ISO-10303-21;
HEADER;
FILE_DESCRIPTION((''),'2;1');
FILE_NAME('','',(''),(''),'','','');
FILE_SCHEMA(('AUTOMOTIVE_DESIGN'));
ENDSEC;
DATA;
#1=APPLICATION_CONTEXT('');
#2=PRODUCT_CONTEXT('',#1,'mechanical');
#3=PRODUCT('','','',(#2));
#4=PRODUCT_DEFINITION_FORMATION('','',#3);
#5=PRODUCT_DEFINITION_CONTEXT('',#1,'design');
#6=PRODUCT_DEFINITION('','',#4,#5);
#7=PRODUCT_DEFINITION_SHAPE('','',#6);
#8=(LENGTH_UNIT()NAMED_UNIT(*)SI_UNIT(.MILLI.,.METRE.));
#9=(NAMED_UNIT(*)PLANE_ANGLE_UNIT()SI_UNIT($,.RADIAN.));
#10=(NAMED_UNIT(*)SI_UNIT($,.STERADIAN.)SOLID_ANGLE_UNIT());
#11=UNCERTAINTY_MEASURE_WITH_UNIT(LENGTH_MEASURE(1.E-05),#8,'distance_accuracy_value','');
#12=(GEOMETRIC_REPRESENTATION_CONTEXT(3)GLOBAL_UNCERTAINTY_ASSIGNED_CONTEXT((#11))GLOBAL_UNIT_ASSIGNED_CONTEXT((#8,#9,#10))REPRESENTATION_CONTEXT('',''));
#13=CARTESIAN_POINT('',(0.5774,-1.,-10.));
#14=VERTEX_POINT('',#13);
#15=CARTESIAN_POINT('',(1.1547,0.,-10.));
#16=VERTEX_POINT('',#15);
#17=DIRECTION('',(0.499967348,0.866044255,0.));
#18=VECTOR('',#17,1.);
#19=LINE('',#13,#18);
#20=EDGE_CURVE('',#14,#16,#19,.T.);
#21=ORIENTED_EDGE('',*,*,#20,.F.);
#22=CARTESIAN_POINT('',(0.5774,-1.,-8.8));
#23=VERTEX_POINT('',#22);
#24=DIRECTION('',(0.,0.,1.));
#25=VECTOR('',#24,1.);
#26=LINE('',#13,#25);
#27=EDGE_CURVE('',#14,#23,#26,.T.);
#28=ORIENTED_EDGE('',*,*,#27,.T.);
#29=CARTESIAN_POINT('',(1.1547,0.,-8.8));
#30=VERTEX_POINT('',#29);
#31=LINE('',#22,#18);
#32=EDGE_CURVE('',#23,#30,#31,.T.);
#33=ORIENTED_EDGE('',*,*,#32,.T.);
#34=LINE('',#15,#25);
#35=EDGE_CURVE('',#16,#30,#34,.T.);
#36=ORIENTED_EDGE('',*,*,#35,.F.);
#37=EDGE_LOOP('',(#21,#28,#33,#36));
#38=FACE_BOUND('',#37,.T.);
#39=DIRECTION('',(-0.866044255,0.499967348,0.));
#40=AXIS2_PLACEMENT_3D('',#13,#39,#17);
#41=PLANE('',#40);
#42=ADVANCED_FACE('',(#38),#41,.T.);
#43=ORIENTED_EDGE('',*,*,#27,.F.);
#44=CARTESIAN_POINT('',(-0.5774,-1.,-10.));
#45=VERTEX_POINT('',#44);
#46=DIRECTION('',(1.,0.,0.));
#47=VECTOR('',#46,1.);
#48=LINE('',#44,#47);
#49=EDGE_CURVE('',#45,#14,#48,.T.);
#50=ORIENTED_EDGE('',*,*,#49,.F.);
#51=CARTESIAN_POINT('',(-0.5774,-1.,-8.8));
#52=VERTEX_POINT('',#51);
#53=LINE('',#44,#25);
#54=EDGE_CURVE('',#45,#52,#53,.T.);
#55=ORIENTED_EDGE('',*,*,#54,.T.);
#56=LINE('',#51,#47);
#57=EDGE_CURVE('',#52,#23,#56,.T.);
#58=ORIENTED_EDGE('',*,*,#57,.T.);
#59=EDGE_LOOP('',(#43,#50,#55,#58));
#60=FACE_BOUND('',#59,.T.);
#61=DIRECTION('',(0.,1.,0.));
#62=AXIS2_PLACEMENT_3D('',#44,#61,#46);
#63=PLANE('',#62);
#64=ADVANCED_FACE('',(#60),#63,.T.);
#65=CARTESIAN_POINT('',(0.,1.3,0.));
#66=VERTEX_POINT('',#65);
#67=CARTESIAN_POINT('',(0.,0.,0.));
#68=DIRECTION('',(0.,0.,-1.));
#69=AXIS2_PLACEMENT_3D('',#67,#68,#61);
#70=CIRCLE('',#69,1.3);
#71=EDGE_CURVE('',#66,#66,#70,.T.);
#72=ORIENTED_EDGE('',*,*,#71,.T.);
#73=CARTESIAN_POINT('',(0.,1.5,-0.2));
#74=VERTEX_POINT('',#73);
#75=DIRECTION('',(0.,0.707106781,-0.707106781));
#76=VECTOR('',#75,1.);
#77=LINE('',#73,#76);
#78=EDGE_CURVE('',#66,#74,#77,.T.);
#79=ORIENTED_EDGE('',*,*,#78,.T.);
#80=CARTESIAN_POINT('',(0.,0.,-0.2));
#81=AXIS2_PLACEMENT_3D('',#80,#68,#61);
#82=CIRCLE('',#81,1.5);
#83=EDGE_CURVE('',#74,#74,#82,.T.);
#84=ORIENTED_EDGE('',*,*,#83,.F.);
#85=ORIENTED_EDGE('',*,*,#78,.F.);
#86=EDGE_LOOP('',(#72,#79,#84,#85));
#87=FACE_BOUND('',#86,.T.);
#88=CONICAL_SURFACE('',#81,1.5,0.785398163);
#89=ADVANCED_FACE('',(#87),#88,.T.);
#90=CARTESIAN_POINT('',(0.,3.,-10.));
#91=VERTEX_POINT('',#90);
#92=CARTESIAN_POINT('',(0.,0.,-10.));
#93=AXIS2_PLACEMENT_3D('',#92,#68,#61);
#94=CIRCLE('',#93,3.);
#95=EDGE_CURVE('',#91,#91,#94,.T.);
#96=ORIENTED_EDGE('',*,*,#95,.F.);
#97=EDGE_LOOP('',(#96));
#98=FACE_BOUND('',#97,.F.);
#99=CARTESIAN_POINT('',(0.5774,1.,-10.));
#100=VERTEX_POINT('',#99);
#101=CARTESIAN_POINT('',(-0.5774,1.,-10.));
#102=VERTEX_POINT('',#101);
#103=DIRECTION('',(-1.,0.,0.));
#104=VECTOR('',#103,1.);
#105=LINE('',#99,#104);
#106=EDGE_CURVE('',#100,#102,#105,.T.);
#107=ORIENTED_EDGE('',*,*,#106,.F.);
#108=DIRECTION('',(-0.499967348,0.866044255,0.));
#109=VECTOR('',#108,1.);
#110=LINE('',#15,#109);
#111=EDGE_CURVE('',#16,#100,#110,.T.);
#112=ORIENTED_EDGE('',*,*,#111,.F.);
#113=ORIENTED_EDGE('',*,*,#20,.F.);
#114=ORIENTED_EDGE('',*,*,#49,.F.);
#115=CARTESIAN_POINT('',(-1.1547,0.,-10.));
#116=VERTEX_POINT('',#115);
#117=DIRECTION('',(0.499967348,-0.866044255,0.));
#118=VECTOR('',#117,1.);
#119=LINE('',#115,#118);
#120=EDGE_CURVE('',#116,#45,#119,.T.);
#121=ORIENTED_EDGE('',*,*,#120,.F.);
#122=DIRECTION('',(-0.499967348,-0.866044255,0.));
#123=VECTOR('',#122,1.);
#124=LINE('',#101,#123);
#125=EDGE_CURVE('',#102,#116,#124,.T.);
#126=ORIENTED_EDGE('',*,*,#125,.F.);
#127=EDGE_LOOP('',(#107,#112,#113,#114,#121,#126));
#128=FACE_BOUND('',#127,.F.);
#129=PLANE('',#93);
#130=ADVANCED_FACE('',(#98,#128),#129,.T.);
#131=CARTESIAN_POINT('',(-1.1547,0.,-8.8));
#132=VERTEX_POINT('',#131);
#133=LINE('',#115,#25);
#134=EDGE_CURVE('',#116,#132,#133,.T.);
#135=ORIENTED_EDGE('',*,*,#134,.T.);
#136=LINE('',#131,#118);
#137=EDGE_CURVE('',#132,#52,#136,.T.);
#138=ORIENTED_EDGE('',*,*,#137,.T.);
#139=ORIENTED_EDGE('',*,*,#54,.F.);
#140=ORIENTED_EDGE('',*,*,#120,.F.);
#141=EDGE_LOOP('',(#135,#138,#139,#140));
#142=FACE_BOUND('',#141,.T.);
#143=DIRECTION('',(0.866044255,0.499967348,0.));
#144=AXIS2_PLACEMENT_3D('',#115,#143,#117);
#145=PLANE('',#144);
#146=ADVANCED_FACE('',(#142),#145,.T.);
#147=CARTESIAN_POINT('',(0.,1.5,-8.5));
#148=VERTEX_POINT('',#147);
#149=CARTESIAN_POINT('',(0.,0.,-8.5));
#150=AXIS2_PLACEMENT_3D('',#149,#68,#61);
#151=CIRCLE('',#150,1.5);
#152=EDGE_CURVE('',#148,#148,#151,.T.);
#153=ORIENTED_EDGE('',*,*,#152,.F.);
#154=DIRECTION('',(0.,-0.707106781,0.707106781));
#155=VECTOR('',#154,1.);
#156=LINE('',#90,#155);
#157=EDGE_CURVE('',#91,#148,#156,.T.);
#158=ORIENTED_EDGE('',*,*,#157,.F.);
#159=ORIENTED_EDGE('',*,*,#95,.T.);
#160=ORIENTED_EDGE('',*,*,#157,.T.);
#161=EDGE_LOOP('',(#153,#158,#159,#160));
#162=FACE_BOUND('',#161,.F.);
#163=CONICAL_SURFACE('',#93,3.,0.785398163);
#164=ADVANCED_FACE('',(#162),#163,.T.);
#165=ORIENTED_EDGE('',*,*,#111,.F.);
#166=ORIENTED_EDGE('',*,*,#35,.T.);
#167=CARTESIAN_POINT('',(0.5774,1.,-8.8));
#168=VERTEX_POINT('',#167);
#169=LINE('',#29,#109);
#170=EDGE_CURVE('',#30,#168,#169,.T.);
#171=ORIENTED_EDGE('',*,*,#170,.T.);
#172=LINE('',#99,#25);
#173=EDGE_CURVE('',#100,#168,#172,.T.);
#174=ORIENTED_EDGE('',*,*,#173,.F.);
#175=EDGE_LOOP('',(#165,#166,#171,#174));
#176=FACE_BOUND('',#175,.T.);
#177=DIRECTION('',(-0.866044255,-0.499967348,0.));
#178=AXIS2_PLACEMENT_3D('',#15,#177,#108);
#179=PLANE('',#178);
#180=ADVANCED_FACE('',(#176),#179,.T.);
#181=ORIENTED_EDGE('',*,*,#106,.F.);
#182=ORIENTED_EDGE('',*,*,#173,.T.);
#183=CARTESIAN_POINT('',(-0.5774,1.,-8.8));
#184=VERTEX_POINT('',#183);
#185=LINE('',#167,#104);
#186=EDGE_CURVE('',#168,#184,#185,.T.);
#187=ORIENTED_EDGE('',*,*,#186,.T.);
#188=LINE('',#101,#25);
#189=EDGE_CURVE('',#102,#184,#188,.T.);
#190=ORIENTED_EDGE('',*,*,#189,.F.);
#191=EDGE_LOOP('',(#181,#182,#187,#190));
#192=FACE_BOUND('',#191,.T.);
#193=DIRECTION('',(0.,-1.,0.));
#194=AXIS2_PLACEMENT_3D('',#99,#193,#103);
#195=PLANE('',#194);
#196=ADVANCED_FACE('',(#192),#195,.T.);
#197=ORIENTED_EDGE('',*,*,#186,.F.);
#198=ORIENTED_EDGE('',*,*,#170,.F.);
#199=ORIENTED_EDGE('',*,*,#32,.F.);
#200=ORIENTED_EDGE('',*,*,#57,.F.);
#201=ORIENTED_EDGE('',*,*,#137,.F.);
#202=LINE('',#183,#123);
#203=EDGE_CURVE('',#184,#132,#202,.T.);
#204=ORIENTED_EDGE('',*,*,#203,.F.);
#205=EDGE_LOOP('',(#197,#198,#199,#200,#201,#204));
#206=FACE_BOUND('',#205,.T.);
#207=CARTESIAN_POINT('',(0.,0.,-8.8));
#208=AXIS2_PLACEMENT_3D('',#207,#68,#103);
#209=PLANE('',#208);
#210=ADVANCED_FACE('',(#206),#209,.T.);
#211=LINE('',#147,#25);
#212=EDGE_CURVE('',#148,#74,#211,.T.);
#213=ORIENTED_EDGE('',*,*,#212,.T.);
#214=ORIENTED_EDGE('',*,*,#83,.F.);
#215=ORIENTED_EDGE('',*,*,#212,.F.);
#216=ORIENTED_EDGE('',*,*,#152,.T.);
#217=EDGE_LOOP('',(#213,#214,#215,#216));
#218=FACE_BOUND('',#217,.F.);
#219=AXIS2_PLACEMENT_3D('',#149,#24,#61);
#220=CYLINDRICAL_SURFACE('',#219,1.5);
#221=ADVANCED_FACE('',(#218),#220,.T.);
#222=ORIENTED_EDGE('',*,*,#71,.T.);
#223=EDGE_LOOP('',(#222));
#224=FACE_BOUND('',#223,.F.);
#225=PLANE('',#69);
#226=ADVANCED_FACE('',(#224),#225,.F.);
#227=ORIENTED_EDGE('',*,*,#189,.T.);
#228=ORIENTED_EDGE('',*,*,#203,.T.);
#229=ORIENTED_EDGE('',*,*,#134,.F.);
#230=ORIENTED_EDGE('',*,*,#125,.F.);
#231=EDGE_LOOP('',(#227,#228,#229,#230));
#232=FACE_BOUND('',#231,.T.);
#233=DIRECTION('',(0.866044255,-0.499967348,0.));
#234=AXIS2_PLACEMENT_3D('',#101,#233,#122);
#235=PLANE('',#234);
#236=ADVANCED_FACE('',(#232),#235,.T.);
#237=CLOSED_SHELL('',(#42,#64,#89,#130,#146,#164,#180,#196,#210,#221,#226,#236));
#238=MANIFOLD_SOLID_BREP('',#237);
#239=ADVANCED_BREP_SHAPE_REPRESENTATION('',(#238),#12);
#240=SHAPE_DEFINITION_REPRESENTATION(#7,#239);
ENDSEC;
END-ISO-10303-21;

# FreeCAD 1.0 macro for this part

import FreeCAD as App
import Part
import Sketcher
from FreeCAD import Vector
Q = App.Units.Quantity


def edges_at(feature, points):
    """Names of the edges that pass closest to the given points."""
    edges = feature.Shape.Edges
    near = lambda p: min(range(len(edges)), key=lambda i: edges[i].distToShape(Part.Vertex(*p))[0])
    return sorted({f"Edge{near(p) + 1}" for p in points})

doc = App.newDocument("Part")
body = doc.addObject("PartDesign::Body", "Body")

# Sketch on YZ plane
sketch1 = body.newObject("Sketcher::SketchObject", "Sketch")
sketch1.AttachmentSupport = (doc.getObject("YZ_Plane"), [""])
sketch1.MapMode = "FlatFace"
sketch1.addGeometry([
    Part.LineSegment(Vector(1.5, 0, 0), Vector(0, 0, 0)),  # 0
    Part.LineSegment(Vector(0, 0, 0), Vector(0, -10, 0)),  # 1
    Part.LineSegment(Vector(0, -10, 0), Vector(3, -10, 0)),  # 2
    Part.LineSegment(Vector(3, -10, 0), Vector(1.5, -8.5, 0)),  # 3
    Part.LineSegment(Vector(1.5, -8.5, 0), Vector(1.5, 0, 0)),  # 4
], False)
sketch1.addConstraint([
    Sketcher.Constraint("Coincident", 0, 2, 1, 1),
    Sketcher.Constraint("Coincident", 1, 2, 2, 1),
    Sketcher.Constraint("Coincident", 2, 2, 3, 1),
    Sketcher.Constraint("Coincident", 3, 2, 4, 1),
    Sketcher.Constraint("Coincident", 4, 2, 0, 1),
    Sketcher.Constraint("Horizontal", 0),
    Sketcher.Constraint("Vertical", 1),
    Sketcher.Constraint("Horizontal", 2),
    Sketcher.Constraint("Vertical", 4),
    Sketcher.Constraint("Coincident", 0, 2, -1, 1),
    Sketcher.Constraint("DistanceX", 2, 1, 2, 2, Q("3 mm")),
    Sketcher.Constraint("DistanceY", 1, 2, 1, 1, Q("10 mm")),
    Sketcher.Constraint("Angle", 3, Q("135 deg")),
    Sketcher.Constraint("DistanceX", 0, 2, 0, 1, Q("1.5 mm")),
])
revolution = body.newObject("PartDesign::Revolution", "Revolution")
revolution.Profile = sketch1
revolution.ReferenceAxis = (sketch1, ["V_Axis"])
revolution.Angle = 360
doc.recompute()

chamfer = body.newObject("PartDesign::Chamfer", "Chamfer")
chamfer.Base = (revolution, edges_at(revolution, [(0, -1.5, 0)]))
chamfer.Size = 0.2

# Sketch on XY plane
sketch2 = body.newObject("Sketcher::SketchObject", "Sketch001")
sketch2.AttachmentSupport = (doc.getObject("XY_Plane"), [""])
sketch2.MapMode = "FlatFace"
sketch2.AttachmentOffset = App.Placement(Vector(0, 0, -10), App.Rotation())
sketch2.addGeometry([
    Part.LineSegment(Vector(-0.6, -1, 0), Vector(-1.2, 0, 0)),  # 0
    Part.LineSegment(Vector(-1.2, 0, 0), Vector(-0.6, 1, 0)),  # 1
    Part.LineSegment(Vector(-0.6, 1, 0), Vector(0.6, 1, 0)),  # 2
    Part.LineSegment(Vector(0.6, 1, 0), Vector(1.2, 0, 0)),  # 3
    Part.LineSegment(Vector(1.2, 0, 0), Vector(0.6, -1, 0)),  # 4
    Part.LineSegment(Vector(0.6, -1, 0), Vector(-0.6, -1, 0)),  # 5
], False)
sketch2.addConstraint([
    Sketcher.Constraint("Coincident", 0, 2, 1, 1),
    Sketcher.Constraint("Coincident", 1, 2, 2, 1),
    Sketcher.Constraint("Coincident", 2, 2, 3, 1),
    Sketcher.Constraint("Coincident", 3, 2, 4, 1),
    Sketcher.Constraint("Coincident", 4, 2, 5, 1),
    Sketcher.Constraint("Coincident", 5, 2, 0, 1),
    Sketcher.Constraint("Horizontal", 2),
    Sketcher.Constraint("Horizontal", 5),
    Sketcher.Constraint("Symmetric", 0, 2, 3, 2, -1, 1),
    Sketcher.Constraint("Symmetric", 1, 2, 4, 2, -1, 1),
    Sketcher.Constraint("PointOnObject", 0, 2, -1),
    Sketcher.Constraint("Parallel", 0, 3),
    Sketcher.Constraint("Vertical", 2, 2, 4, 2),
    Sketcher.Constraint("DistanceY", 4, 2, 2, 2, Q("2 mm")),
    Sketcher.Constraint("DistanceX", 2, 1, 2, 2, Q("1.1548 mm")),
    Sketcher.Constraint("DistanceX", 0, 2, 2, 2, Q("1.732 mm")),
])
pocket1 = body.newObject("PartDesign::Pocket", "Pocket")
pocket1.Profile = sketch2
pocket1.Length = 1.2
pocket1.Reversed = True

doc.recompute()
